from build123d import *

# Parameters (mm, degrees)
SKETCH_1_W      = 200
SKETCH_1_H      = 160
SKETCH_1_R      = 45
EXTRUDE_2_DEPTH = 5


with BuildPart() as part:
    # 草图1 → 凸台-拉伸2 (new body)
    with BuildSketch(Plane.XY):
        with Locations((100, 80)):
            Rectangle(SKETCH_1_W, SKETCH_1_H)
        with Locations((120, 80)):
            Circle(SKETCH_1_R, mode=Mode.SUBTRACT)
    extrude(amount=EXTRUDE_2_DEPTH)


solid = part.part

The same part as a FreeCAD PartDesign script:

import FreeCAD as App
import Part
import Sketcher

V = App.Vector

doc = App.newDocument("Part")
body = doc.addObject("PartDesign::Body", "Body")

sketch1 = body.newObject("Sketcher::SketchObject", "Sketch")
sketch1.AttachmentSupport = (doc.getObject("XY_Plane"), [""])
sketch1.MapMode = "FlatFace"
sketch1.addGeometry(Part.LineSegment(V(0, 160, 0), V(0, 0, 0)), False)
sketch1.addGeometry(Part.LineSegment(V(0, 0, 0), V(200, 0, 0)), False)
sketch1.addGeometry(Part.LineSegment(V(200, 0, 0), V(200, 160, 0)), False)
sketch1.addGeometry(Part.LineSegment(V(200, 160, 0), V(0, 160, 0)), False)
sketch1.addGeometry(Part.Circle(V(120, 80, 0), V(0, 0, 1), 45), False)
sketch1.addConstraint(Sketcher.Constraint("Coincident", 0, 2, 1, 1))
sketch1.addConstraint(Sketcher.Constraint("Coincident", 1, 2, 2, 1))
sketch1.addConstraint(Sketcher.Constraint("Coincident", 2, 2, 3, 1))
sketch1.addConstraint(Sketcher.Constraint("Coincident", 3, 2, 0, 1))
sketch1.addConstraint(Sketcher.Constraint("Vertical", 0))
sketch1.addConstraint(Sketcher.Constraint("Horizontal", 1))
sketch1.addConstraint(Sketcher.Constraint("Vertical", 2))
sketch1.addConstraint(Sketcher.Constraint("Horizontal", 3))
sketch1.addConstraint(Sketcher.Constraint("Coincident", 0, 2, -1, 1))
sketch1.addConstraint(Sketcher.Constraint("Diameter", 4, 90.0))
sketch1.addConstraint(Sketcher.Constraint("DistanceX", 1, 1, 1, 2, 200.0))
sketch1.addConstraint(Sketcher.Constraint("DistanceY", 0, 2, 0, 1, 160.0))
sketch1.addConstraint(Sketcher.Constraint("DistanceX", -1, 1, 4, 3, 120.0))
sketch1.addConstraint(Sketcher.Constraint("DistanceY", -1, 1, 4, 3, 80.0))
pad1 = body.newObject("PartDesign::Pad", "Pad")
pad1.Profile = sketch1
pad1.Length = 5

doc.recompute()
